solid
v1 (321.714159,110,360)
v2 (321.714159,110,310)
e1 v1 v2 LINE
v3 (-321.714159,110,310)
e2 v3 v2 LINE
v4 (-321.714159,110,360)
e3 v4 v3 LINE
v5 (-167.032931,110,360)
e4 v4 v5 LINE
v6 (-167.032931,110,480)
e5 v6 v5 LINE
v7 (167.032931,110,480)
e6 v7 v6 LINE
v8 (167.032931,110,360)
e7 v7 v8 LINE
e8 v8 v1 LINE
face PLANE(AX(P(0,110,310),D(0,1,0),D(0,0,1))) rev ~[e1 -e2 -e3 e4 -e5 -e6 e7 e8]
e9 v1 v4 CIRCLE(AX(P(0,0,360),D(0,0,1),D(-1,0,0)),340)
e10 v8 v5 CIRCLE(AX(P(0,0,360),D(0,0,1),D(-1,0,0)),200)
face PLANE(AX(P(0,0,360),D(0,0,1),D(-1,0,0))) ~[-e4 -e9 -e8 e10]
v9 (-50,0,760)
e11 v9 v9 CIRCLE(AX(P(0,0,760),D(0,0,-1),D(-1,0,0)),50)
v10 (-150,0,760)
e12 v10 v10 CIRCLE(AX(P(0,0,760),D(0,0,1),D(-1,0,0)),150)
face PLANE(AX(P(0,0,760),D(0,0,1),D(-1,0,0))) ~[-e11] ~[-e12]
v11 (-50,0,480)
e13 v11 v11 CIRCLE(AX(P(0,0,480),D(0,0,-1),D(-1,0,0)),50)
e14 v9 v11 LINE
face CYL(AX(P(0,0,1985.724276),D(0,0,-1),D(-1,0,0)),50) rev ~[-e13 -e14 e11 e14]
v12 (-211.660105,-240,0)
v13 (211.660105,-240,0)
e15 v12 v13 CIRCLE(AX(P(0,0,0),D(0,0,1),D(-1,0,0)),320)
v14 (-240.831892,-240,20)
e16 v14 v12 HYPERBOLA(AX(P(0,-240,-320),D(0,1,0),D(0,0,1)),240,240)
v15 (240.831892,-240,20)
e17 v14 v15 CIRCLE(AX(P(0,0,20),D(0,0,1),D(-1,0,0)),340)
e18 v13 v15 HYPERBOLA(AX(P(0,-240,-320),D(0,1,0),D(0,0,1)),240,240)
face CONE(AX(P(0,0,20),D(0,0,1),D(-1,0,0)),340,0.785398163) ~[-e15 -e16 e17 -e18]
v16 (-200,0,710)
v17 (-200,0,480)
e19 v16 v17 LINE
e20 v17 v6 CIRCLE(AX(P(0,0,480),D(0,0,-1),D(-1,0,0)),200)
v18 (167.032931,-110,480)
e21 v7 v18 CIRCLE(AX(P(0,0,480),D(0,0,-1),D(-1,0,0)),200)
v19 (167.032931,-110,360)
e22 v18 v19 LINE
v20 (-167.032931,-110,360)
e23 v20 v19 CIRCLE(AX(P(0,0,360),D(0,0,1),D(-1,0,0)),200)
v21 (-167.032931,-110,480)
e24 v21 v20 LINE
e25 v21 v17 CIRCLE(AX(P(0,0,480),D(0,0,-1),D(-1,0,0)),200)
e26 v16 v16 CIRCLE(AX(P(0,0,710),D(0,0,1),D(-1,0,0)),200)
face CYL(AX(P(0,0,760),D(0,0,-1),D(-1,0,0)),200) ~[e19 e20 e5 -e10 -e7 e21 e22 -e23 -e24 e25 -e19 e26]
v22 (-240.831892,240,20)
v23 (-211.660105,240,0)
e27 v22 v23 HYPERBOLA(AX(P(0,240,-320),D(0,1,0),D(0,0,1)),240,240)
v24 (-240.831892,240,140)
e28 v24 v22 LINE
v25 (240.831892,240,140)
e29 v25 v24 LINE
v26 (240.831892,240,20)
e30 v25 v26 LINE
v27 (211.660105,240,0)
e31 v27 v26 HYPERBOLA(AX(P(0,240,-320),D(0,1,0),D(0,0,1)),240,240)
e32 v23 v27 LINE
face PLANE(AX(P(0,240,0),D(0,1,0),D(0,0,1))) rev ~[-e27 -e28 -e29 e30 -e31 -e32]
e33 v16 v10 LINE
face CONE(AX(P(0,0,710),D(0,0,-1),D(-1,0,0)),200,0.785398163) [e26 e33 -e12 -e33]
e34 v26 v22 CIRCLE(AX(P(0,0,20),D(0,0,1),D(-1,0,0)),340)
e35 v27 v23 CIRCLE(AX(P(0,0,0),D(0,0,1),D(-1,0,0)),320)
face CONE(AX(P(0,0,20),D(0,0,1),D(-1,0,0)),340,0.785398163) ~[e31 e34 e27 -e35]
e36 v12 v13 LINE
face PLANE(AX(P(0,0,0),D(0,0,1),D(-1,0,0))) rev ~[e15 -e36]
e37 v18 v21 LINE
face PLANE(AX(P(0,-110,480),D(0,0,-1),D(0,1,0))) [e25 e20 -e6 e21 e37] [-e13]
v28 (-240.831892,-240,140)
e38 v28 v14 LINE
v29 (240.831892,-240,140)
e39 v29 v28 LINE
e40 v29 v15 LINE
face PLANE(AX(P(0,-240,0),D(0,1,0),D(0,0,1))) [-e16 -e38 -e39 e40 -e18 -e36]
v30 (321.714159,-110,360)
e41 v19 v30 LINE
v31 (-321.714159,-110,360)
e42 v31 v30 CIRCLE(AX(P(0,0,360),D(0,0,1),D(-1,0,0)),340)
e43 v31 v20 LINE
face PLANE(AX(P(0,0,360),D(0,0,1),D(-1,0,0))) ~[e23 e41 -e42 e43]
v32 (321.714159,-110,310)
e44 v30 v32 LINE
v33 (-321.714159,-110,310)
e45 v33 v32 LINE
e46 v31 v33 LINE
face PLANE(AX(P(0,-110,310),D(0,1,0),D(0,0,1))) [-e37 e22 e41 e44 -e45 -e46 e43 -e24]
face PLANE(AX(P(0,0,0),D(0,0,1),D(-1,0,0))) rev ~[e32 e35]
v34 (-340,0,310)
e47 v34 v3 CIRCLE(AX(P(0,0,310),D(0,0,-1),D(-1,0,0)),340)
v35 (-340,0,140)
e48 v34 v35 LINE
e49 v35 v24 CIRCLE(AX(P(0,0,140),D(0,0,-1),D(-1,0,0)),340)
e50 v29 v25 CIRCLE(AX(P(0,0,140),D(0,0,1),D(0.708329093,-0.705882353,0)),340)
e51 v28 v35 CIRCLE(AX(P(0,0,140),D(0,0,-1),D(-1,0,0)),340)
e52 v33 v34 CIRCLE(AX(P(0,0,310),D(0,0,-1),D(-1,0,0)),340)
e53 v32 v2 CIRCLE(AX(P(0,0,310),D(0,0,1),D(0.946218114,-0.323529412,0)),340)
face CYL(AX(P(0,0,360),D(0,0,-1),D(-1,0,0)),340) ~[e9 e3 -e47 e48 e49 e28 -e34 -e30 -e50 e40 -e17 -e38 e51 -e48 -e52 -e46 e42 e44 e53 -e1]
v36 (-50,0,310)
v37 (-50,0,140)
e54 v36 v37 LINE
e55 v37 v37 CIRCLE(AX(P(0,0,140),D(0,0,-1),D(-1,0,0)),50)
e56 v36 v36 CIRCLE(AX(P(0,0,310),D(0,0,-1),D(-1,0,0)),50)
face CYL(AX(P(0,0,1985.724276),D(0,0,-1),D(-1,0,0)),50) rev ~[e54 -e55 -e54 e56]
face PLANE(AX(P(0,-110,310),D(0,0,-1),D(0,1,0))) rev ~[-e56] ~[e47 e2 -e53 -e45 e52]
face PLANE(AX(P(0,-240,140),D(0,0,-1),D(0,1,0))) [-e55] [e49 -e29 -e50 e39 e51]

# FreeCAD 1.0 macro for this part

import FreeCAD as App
import Part
import Sketcher

V = App.Vector
Q = App.Units.Quantity


def edges_at(feature, points):
    """Names of the edges that pass closest to the given points."""
    edges = feature.Shape.Edges
    near = lambda p: min(range(len(edges)), key=lambda i: edges[i].distToShape(Part.Vertex(*p))[0])
    return sorted({f"Edge{near(p) + 1}" for p in points})

doc = App.newDocument("Part")
body = doc.addObject("PartDesign::Body", "Body")

# Sketch on XZ plane
sketch1 = body.newObject("Sketcher::SketchObject", "Sketch")
sketch1.AttachmentSupport = (doc.getObject("XZ_Plane"), [""])
sketch1.MapMode = "FlatFace"
sketch1.addGeometry([
    Part.LineSegment(V(0, 0, 0), V(0, 760, 0)),  # 0
    Part.LineSegment(V(0, 760, 0), V(-200, 760, 0)),  # 1
    Part.LineSegment(V(-200, 760, 0), V(-200, 360, 0)),  # 2
    Part.LineSegment(V(-200, 360, 0), V(-340, 360, 0)),  # 3
    Part.LineSegment(V(-340, 360, 0), V(-340, 0, 0)),  # 4
    Part.LineSegment(V(-340, 0, 0), V(0, 0, 0)),  # 5
], False)
sketch1.addConstraint([
    Sketcher.Constraint("Coincident", 0, 2, 1, 1),
    Sketcher.Constraint("Coincident", 1, 2, 2, 1),
    Sketcher.Constraint("Coincident", 2, 2, 3, 1),
    Sketcher.Constraint("Coincident", 3, 2, 4, 1),
    Sketcher.Constraint("Coincident", 4, 2, 5, 1),
    Sketcher.Constraint("Coincident", 5, 2, 0, 1),
    Sketcher.Constraint("Vertical", 0),
    Sketcher.Constraint("Horizontal", 1),
    Sketcher.Constraint("Vertical", 2),
    Sketcher.Constraint("Horizontal", 3),
    Sketcher.Constraint("Vertical", 4),
    Sketcher.Constraint("Horizontal", 5),
    Sketcher.Constraint("Coincident", 5, 2, -1, 1),
    Sketcher.Constraint("DistanceX", 1, 2, 1, 1, Q("200 mm")),
    Sketcher.Constraint("DistanceX", 3, 2, 3, 1, Q("140 mm")),
    Sketcher.Constraint("DistanceY", 0, 1, 0, 2, Q("760 mm")),
    Sketcher.Constraint("DistanceY", 2, 2, 2, 1, Q("400 mm")),
])
revolution = body.newObject("PartDesign::Revolution", "Revolution")
revolution.Profile = sketch1
revolution.ReferenceAxis = (sketch1, ["V_Axis"])
revolution.Angle = 360
doc.recompute()

chamfer = body.newObject("PartDesign::Chamfer", "Chamfer")
chamfer.Base = (revolution, edges_at(revolution, [(340, 0, 0)]))
chamfer.Size = 20
doc.recompute()

chamfer2 = body.newObject("PartDesign::Chamfer", "Chamfer001")
chamfer2.Base = (chamfer, edges_at(chamfer, [(200, 0, 760)]))
chamfer2.Size = 50

# Sketch on YZ plane
sketch2 = body.newObject("Sketcher::SketchObject", "Sketch001")
sketch2.AttachmentSupport = (doc.getObject("YZ_Plane"), [""])
sketch2.MapMode = "FlatFace"
sketch2.addGeometry([
    Part.LineSegment(V(-240, 140, 0), V(-240, 0, 0)),
    Part.LineSegment(V(-240, 0, 0), V(240, 0, 0)),
    Part.LineSegment(V(240, 0, 0), V(240, 140, 0)),
    Part.LineSegment(V(240, 140, 0), V(-240, 140, 0)),
], False)
sketch2.addConstraint([
    Sketcher.Constraint("Coincident", 0, 2, 1, 1),
    Sketcher.Constraint("Coincident", 1, 2, 2, 1),
    Sketcher.Constraint("Coincident", 2, 2, 3, 1),
    Sketcher.Constraint("Coincident", 3, 2, 0, 1),
    Sketcher.Constraint("Vertical", 0),
    Sketcher.Constraint("Horizontal", 1),
    Sketcher.Constraint("Vertical", 2),
    Sketcher.Constraint("Horizontal", 3),
    Sketcher.Constraint("Symmetric", 0, 2, 1, 2, -1, 1),
    Sketcher.Constraint("DistanceX", 1, 1, 1, 2, Q("480 mm")),
    Sketcher.Constraint("DistanceY", 0, 2, 0, 1, Q("140 mm")),
])
pocket1 = body.newObject("PartDesign::Pocket", "Pocket")
pocket1.Profile = sketch2
pocket1.Length = 680
pocket1.Midplane = True

# Sketch on YZ plane
sketch3 = body.newObject("Sketcher::SketchObject", "Sketch002")
sketch3.AttachmentSupport = (doc.getObject("YZ_Plane"), [""])
sketch3.MapMode = "FlatFace"
sketch3.addGeometry([
    Part.LineSegment(V(-110, 480, 0), V(-110, 310, 0)),
    Part.LineSegment(V(-110, 310, 0), V(110, 310, 0)),
    Part.LineSegment(V(110, 310, 0), V(110, 480, 0)),
    Part.LineSegment(V(110, 480, 0), V(-110, 480, 0)),
], False)
sketch3.addConstraint([
    Sketcher.Constraint("Coincident", 0, 2, 1, 1),
    Sketcher.Constraint("Coincident", 1, 2, 2, 1),
    Sketcher.Constraint("Coincident", 2, 2, 3, 1),
    Sketcher.Constraint("Coincident", 3, 2, 0, 1),
    Sketcher.Constraint("Vertical", 0),
    Sketcher.Constraint("Horizontal", 1),
    Sketcher.Constraint("Vertical", 2),
    Sketcher.Constraint("Horizontal", 3),
    Sketcher.Constraint("DistanceX", 1, 1, 1, 2, Q("220 mm")),
    Sketcher.Constraint("DistanceY", 0, 2, 0, 1, Q("170 mm")),
    Sketcher.Constraint("DistanceX", 0, 2, -1, 1, Q("110 mm")),
    Sketcher.Constraint("DistanceY", -1, 1, 0, 2, Q("310 mm")),
])
pocket2 = body.newObject("PartDesign::Pocket", "Pocket001")
pocket2.Profile = sketch3
pocket2.Length = 680
pocket2.Midplane = True

# Sketch on XY plane
sketch4 = body.newObject("Sketcher::SketchObject", "Sketch003")
sketch4.AttachmentSupport = (doc.getObject("XY_Plane"), [""])
sketch4.MapMode = "FlatFace"
sketch4.AttachmentOffset = App.Placement(V(0, 0, 760), App.Rotation())
sketch4.addGeometry(Part.Circle(V(0, 0, 0), V(0, 0, 1), 50), False)
sketch4.addConstraint([
    Sketcher.Constraint("Coincident", 0, 3, -1, 1),
    Sketcher.Constraint("Diameter", 0, Q("100 mm")),
])
doc.recompute()
hole = body.newObject("PartDesign::Hole", "Hole")
hole.Profile = sketch4
hole.ThreadType = "None"
hole.Diameter = 100
hole.DepthType = "ThroughAll"

doc.recompute()
